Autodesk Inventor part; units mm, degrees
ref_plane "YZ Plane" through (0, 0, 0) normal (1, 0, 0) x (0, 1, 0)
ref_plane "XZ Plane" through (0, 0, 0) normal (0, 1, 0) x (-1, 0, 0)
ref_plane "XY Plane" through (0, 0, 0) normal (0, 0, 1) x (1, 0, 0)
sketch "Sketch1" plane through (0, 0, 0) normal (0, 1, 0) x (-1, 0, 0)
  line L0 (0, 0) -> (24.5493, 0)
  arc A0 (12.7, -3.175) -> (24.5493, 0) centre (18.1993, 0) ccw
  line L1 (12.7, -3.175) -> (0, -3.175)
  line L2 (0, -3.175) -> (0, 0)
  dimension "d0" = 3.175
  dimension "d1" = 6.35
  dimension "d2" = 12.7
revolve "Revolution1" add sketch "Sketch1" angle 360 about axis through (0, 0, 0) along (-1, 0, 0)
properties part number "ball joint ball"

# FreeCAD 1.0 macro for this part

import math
import FreeCAD as App
import Part
import Sketcher

V = App.Vector
Q = App.Units.Quantity

doc = App.newDocument("Part")
body = doc.addObject("PartDesign::Body", "Body")

# Sketch on XZ plane
sketch1 = body.newObject("Sketcher::SketchObject", "Sketch")
sketch1.AttachmentSupport = (doc.getObject("XZ_Plane"), [""])
sketch1.MapMode = "FlatFace"
sketch1.addGeometry(Part.LineSegment(V(-24.5, 0, 0), V(0, 0, 0)), False)
sketch1.addGeometry(Part.LineSegment(V(0, 0, 0), V(0, -3.2, 0)), False)
sketch1.addGeometry(Part.LineSegment(V(0, -3.2, 0), V(-12.7, -3.2, 0)), False)
sketch1.addGeometry(Part.ArcOfCircle(Part.Circle(V(-18.2, 0, 0), V(0, 0, 1), 6.4), math.radians(180), math.radians(330)), False)
sketch1.addConstraint(Sketcher.Constraint("Coincident", 0, 2, 1, 1))
sketch1.addConstraint(Sketcher.Constraint("Coincident", 1, 2, 2, 1))
sketch1.addConstraint(Sketcher.Constraint("Coincident", 2, 2, 3, 2))
sketch1.addConstraint(Sketcher.Constraint("Coincident", 3, 1, 0, 1))
sketch1.addConstraint(Sketcher.Constraint("Horizontal", 0))
sketch1.addConstraint(Sketcher.Constraint("Vertical", 1))
sketch1.addConstraint(Sketcher.Constraint("Horizontal", 2))
sketch1.addConstraint(Sketcher.Constraint("Coincident", 0, 2, -1, 1))
sketch1.addConstraint(Sketcher.Constraint("PointOnObject", 3, 3, -1))
sketch1.addConstraint(Sketcher.Constraint("Radius", 3, Q("0.25 in")))
sketch1.addConstraint(Sketcher.Constraint("DistanceX", 2, 2, 2, 1, Q("0.5 in")))
sketch1.addConstraint(Sketcher.Constraint("DistanceY", 1, 2, 1, 1, Q("0.125 in")))
revolution = body.newObject("PartDesign::Revolution", "Revolution")
revolution.Profile = sketch1
revolution.ReferenceAxis = (sketch1, ["H_Axis"])
revolution.Angle = 360

doc.recompute()
